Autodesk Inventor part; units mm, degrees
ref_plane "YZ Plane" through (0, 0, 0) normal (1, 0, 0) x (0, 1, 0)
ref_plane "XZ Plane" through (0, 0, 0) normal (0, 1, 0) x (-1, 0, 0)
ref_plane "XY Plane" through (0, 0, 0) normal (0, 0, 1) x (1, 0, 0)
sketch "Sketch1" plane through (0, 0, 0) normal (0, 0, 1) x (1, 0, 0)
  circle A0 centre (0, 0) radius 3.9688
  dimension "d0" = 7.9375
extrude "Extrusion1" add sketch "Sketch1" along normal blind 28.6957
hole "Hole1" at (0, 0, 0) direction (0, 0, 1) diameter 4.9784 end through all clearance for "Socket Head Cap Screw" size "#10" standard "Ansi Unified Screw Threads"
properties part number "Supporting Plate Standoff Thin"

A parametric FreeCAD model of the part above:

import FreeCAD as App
import Part
import Sketcher
Q = App.Units.Quantity

doc = App.newDocument("Part")
body = doc.addObject("PartDesign::Body", "Body")

sketch1 = doc.addObject("Sketcher::SketchObject", "Sketch")
body.addObject(sketch1)
sketch1.AttachmentSupport = (doc.XY_Plane, [""])
sketch1.MapMode = "FlatFace"
sketch1.addGeometry(Part.Circle(App.Vector(0, 0, 0), App.Vector(0, 0, 1), 3.9688), False)
sketch1.addConstraint(Sketcher.Constraint("Coincident", 0, 3, -1, 1))
sketch1.addConstraint(Sketcher.Constraint("Diameter", 0, Q("0.3125 in")))
pad1 = doc.addObject("PartDesign::Pad", "Pad")
body.addObject(pad1)
pad1.Profile = sketch1
pad1.Length = 28.6957

sketch2 = doc.addObject("Sketcher::SketchObject", "Sketch001")
body.addObject(sketch2)
sketch2.AttachmentSupport = (doc.XY_Plane, [""])
sketch2.MapMode = "FlatFace"
sketch2.addGeometry(Part.Circle(App.Vector(0, 0, 0), App.Vector(0, 0, 1), 2.4892), False)
sketch2.addConstraint(Sketcher.Constraint("Coincident", 0, 3, -1, 1))
sketch2.addConstraint(Sketcher.Constraint("Diameter", 0, Q("0.196 in")))
doc.recompute()
hole = doc.addObject("PartDesign::Hole", "Hole")
body.addObject(hole)
hole.Profile = sketch2
hole.ThreadType = "None"
hole.Diameter = Q("0.196 in")
hole.DepthType = "ThroughAll"
hole.Reversed = True

doc.recompute()
